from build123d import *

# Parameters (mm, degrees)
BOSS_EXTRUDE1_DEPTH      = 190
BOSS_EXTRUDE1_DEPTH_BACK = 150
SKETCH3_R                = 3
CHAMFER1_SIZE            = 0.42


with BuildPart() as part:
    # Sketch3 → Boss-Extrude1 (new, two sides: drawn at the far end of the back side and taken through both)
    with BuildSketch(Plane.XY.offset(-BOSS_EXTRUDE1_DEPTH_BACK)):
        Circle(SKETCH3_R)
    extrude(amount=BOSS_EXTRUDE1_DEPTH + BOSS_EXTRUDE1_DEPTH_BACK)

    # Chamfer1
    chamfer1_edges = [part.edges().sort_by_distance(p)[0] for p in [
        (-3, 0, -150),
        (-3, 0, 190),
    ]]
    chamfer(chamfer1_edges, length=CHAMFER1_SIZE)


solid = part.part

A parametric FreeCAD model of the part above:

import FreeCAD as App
import Part
import Sketcher
from FreeCAD import Vector


def edges_at(feature, points):
    """Names of the edges that pass closest to the given points."""
    edges = feature.Shape.Edges
    near = lambda p: min(range(len(edges)), key=lambda i: edges[i].distToShape(Part.Vertex(*p))[0])
    return sorted({f"Edge{near(p) + 1}" for p in points})

doc = App.newDocument("Part")
body = doc.addObject("PartDesign::Body", "Body")

# Sketch on XY plane
sketch1 = doc.addObject("Sketcher::SketchObject", "Sketch")
body.addObject(sketch1)
sketch1.AttachmentSupport = (doc.XY_Plane, [""])
sketch1.MapMode = "FlatFace"
sketch1.addGeometry(Part.Circle(Vector(0, 0, 0), Vector(0, 0, 1), 3), False)
sketch1.addConstraint(Sketcher.Constraint("Coincident", 0, 3, -1, 1))
sketch1.addConstraint(Sketcher.Constraint("Diameter", 0, 6.0))
pad1 = doc.addObject("PartDesign::Pad", "Pad")
body.addObject(pad1)
pad1.Profile = sketch1
pad1.Type = "TwoLengths"
pad1.Length = 190
pad1.Length2 = 150
doc.recompute()

chamfer = doc.addObject("PartDesign::Chamfer", "Chamfer")
body.addObject(chamfer)
chamfer.Base = (pad1, edges_at(pad1, [(-3, 0, -150), (-3, 0, 190)]))
chamfer.Size = 0.42

doc.recompute()
